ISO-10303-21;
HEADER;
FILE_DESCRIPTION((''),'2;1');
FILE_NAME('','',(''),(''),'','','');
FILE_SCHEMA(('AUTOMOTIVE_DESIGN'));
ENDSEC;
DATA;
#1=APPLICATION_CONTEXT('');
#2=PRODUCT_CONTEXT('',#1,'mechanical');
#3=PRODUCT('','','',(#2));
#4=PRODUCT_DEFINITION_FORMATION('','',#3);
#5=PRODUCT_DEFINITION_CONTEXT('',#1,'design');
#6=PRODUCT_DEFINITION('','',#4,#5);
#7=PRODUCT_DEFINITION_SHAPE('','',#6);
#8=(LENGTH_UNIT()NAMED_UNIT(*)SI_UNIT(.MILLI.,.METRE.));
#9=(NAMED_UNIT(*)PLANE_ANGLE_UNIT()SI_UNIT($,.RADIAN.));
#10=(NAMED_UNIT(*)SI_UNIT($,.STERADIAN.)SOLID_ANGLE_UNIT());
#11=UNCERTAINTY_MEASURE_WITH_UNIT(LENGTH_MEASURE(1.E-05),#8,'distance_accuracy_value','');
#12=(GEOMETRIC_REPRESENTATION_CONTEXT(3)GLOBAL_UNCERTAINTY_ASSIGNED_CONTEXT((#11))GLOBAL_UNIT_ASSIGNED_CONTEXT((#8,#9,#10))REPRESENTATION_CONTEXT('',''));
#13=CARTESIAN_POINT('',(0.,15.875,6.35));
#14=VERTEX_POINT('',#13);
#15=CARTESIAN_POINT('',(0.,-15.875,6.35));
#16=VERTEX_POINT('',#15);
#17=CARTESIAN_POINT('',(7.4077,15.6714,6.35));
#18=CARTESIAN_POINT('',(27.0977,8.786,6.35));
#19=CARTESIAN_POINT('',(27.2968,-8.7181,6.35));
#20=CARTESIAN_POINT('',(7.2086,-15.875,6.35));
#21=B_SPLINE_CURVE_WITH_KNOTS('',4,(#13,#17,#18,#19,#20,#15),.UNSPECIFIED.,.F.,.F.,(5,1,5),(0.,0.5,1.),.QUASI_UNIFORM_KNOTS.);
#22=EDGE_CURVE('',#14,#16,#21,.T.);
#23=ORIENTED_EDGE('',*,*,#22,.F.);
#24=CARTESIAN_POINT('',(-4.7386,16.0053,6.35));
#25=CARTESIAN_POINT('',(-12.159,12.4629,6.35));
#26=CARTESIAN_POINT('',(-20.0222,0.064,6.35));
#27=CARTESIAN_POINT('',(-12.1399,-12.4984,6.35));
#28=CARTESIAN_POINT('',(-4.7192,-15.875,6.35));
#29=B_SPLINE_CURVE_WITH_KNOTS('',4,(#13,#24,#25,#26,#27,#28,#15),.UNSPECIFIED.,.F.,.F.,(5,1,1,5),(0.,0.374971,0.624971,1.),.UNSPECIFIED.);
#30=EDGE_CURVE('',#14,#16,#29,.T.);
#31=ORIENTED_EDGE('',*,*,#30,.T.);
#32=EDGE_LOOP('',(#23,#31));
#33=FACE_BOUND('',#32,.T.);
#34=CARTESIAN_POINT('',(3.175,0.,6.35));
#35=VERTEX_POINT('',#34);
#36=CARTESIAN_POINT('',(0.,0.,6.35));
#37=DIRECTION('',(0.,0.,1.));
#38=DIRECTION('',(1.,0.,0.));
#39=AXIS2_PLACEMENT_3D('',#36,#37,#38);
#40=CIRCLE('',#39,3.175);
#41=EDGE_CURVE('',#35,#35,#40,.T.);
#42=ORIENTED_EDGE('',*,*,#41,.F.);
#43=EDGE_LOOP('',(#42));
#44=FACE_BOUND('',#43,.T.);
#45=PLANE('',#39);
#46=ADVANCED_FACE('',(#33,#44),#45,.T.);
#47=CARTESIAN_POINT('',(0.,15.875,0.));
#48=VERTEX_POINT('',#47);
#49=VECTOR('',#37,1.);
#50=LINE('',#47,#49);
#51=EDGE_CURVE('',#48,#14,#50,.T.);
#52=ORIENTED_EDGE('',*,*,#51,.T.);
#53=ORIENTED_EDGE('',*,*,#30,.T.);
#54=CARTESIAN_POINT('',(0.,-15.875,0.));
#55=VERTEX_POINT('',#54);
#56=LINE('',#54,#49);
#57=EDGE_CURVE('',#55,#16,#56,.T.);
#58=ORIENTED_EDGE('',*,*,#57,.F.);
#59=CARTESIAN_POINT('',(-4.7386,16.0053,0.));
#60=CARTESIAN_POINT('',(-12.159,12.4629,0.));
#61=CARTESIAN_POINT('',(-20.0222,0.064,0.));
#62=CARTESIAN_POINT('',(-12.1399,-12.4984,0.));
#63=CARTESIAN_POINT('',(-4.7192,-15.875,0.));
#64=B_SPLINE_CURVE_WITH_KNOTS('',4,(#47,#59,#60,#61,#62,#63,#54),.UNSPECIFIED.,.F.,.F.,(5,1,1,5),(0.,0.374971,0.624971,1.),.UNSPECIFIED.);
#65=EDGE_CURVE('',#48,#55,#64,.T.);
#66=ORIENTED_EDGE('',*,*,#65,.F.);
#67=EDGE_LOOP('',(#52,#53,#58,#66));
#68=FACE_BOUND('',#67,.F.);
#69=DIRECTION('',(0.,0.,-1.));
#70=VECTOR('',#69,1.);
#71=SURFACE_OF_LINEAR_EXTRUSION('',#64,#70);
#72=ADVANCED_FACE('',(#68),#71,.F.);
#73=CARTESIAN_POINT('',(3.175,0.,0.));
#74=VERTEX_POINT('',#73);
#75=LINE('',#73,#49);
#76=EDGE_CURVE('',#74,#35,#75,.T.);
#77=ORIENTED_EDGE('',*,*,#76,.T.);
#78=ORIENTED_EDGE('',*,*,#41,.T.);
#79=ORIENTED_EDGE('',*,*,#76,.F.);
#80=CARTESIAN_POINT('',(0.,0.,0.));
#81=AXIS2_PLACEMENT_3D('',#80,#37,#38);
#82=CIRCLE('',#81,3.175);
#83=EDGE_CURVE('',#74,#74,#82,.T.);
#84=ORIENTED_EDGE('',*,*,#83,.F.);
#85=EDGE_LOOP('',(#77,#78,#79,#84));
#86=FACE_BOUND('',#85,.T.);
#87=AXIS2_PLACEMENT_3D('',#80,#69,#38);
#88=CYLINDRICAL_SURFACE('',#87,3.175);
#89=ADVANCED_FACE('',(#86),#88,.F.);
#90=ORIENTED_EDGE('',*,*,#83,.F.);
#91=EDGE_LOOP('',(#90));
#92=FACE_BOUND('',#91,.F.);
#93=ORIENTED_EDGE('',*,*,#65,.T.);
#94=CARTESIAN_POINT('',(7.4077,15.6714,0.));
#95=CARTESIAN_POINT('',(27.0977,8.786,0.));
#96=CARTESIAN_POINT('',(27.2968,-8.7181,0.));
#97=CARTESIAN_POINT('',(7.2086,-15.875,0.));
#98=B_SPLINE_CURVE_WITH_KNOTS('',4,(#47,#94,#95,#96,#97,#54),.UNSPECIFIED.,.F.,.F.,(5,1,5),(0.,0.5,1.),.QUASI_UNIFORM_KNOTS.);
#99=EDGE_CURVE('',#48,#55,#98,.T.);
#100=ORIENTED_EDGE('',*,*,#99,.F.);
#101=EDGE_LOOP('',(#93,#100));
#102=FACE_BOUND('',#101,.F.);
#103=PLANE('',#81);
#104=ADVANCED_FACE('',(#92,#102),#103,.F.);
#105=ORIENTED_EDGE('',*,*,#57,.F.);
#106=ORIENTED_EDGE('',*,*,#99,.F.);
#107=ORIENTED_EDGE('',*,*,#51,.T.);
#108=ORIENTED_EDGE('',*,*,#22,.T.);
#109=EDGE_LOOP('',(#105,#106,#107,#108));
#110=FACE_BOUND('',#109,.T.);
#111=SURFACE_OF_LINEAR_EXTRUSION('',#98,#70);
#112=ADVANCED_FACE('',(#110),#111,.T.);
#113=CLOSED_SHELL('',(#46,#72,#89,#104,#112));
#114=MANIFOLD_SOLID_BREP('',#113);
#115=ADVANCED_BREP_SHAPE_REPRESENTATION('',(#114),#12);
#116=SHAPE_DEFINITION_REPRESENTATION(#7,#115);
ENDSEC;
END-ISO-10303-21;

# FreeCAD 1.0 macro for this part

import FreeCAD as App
import Part
import Sketcher

V = App.Vector
Q = App.Units.Quantity

doc = App.newDocument("Part")
params = doc.addObject("Spreadsheet::Sheet", "Params")
for row, (alias, value) in enumerate([
    ("sketch1_diameter", "0.25 in"),
    ("pad1_length", "0.25 in"),
], start=1):
    params.set(f"A{row}", alias)
    params.set(f"B{row}", "=" + value)
    params.setAlias(f"B{row}", alias)

body = doc.addObject("PartDesign::Body", "Body")

# Sketch on XY plane
sketch1 = body.newObject("Sketcher::SketchObject", "Sketch")
sketch1.AttachmentSupport = (doc.getObject("XY_Plane"), [""])
sketch1.MapMode = "FlatFace"
sketch1.addGeometry([
    Part.BSplineCurve([V(0, 15.875, 0), V(7.4077, 15.6714, 0), V(27.0977, 8.786, 0), V(27.2968, -8.7181, 0), V(7.2086, -15.875, 0), V(0, -15.875, 0)], [5, 1, 5], [0, 0.5, 1], False, 4, [1, 1, 1, 1, 1, 1], False),
    Part.BSplineCurve([V(0, 15.875, 0), V(-4.7386, 16.0053, 0), V(-12.159, 12.4629, 0), V(-20.0222, 0.064, 0), V(-12.1399, -12.4984, 0), V(-4.7192, -15.875, 0), V(0, -15.875, 0)], [5, 1, 1, 5], [0, 0.374971, 0.624971, 1], False, 4, [1, 1, 1, 1, 1, 1, 1], False),
    Part.Circle(V(0, 0, 0), V(0, 0, 1), 3.175),
], False)
sketch1.addConstraint([
    Sketcher.Constraint("Block", 0),
    Sketcher.Constraint("Block", 1),
    Sketcher.Constraint("Coincident", 2, 3, -1, 1),
    Sketcher.Constraint("Diameter", 2, Q("0.25 in")),
])
sketch1.setExpression("Constraints[3]", "Params.sketch1_diameter")
pad1 = body.newObject("PartDesign::Pad", "Pad")
pad1.Profile = sketch1
pad1.setExpression("Length", "Params.pad1_length")

doc.recompute()
